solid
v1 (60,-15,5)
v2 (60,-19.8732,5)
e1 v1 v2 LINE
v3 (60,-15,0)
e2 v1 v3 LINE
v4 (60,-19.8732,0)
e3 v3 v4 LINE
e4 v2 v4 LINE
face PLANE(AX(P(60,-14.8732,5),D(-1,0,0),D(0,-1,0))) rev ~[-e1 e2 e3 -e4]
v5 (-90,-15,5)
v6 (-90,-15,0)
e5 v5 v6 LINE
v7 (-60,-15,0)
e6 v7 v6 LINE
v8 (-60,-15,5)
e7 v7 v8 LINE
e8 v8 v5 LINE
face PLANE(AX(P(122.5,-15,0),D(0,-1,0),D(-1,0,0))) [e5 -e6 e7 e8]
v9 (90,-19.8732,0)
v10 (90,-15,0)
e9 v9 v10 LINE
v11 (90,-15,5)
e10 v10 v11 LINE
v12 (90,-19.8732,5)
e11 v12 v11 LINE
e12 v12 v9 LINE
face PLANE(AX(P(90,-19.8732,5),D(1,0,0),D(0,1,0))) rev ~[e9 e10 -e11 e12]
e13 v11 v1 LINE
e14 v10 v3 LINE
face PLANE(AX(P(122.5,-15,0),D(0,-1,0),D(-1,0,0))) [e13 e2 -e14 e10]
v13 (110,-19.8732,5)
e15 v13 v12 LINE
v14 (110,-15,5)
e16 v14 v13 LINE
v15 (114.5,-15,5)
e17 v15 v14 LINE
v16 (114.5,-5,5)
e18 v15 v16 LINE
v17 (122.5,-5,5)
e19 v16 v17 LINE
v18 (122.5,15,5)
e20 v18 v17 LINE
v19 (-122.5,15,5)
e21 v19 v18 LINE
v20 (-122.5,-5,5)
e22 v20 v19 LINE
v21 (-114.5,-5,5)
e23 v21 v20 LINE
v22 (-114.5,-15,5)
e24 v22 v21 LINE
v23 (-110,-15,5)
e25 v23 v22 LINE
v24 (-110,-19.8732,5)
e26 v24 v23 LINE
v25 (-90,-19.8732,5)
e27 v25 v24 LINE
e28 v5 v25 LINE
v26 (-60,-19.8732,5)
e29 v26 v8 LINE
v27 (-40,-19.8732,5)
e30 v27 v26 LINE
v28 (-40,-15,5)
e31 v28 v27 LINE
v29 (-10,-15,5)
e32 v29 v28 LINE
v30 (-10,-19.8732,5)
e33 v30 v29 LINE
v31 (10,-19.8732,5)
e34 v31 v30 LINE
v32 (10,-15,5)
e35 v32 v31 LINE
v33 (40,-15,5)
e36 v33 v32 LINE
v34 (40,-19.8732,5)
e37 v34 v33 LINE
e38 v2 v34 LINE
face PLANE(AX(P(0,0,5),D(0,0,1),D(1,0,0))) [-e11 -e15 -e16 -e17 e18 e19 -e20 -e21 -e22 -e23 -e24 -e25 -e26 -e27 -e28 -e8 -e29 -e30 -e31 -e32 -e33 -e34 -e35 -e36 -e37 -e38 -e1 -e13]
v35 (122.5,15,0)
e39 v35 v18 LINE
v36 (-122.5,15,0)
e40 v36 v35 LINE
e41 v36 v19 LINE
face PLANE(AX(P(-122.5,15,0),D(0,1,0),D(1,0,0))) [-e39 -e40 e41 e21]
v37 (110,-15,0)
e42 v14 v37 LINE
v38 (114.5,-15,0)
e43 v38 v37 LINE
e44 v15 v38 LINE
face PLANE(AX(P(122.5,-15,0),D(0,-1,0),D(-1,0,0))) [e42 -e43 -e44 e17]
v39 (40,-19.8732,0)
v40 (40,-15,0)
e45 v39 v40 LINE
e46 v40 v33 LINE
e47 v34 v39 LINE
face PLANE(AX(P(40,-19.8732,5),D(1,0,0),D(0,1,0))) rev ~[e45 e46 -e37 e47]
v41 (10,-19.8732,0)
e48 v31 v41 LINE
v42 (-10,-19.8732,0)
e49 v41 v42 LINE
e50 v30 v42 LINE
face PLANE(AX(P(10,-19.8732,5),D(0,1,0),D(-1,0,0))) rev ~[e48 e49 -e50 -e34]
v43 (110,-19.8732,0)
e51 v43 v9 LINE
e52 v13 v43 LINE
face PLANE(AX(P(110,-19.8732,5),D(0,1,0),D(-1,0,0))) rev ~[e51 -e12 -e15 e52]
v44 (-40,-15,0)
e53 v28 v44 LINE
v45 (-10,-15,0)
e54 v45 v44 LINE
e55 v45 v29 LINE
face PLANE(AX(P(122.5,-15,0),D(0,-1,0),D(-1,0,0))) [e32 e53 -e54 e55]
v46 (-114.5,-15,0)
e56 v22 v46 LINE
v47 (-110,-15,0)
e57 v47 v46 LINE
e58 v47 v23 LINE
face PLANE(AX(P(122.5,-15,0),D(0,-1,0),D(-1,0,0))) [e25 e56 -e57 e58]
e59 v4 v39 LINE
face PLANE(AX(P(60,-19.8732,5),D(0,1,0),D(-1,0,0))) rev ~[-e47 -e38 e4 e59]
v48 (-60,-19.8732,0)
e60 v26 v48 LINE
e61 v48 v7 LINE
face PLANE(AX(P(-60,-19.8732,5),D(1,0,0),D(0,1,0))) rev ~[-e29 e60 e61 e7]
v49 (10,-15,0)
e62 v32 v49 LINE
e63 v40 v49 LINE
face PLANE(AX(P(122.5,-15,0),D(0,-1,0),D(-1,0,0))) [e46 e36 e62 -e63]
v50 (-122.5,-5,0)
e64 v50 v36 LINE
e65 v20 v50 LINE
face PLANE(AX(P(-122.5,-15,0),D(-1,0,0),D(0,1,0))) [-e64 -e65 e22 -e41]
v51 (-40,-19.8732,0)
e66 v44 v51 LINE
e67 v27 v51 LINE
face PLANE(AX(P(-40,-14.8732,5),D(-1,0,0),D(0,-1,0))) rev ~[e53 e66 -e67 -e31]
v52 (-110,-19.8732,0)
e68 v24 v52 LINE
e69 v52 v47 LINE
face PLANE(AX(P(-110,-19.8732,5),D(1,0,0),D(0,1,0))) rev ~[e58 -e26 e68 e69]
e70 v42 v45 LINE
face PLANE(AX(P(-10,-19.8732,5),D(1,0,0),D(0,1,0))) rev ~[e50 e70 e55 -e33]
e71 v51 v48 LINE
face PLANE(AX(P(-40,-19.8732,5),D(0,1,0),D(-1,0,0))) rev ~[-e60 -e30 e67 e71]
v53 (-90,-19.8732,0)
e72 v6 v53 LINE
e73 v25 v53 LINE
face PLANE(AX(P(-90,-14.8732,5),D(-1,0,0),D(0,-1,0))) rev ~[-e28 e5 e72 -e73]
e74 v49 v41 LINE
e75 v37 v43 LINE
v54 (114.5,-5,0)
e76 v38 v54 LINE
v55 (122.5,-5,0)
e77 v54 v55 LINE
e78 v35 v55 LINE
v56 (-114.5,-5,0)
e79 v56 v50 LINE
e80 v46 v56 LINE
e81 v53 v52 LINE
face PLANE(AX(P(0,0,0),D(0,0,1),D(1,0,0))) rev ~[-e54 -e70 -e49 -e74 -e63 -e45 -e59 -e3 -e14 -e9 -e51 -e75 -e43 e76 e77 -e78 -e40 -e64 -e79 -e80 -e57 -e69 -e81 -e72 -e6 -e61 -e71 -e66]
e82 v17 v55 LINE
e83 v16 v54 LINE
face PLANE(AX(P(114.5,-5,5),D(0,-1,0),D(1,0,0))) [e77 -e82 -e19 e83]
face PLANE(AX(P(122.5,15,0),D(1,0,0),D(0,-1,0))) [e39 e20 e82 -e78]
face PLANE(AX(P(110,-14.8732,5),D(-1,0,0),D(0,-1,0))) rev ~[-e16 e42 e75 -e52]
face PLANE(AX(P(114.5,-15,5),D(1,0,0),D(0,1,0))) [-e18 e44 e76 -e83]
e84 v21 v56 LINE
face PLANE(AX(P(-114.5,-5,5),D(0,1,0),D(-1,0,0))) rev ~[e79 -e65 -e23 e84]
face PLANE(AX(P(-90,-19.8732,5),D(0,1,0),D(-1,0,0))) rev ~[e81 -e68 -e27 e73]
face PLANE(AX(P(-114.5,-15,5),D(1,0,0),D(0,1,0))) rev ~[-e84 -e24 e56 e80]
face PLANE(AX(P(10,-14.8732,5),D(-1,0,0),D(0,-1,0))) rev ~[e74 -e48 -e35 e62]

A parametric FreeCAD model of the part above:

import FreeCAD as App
import Part
import Sketcher

V = App.Vector


def add_polygon(sketch, points):
    """Adds a closed chain of lines whose ends are joined by coincident constraints."""
    first, n = sketch.GeometryCount, len(points)
    for a, b in zip(points, points[1:] + points[:1]):
        sketch.addGeometry(Part.LineSegment(App.Vector(*a, 0), App.Vector(*b, 0)), False)
    for i in range(n):
        sketch.addConstraint(Sketcher.Constraint("Coincident", first + i, 2, first + (i + 1) % n, 1))

doc = App.newDocument("Part")
body = doc.addObject("PartDesign::Body", "Body")

# Sketch on XY plane
sketch1 = body.newObject("Sketcher::SketchObject", "Sketch")
sketch1.AttachmentSupport = (doc.getObject("XY_Plane"), [""])
sketch1.MapMode = "FlatFace"
add_polygon(sketch1, [(122, 15), (-122, 15), (-122, -15), (122, -15)])  # lines 0-3
sketch1.addConstraint([
    Sketcher.Constraint("Horizontal", 0),
    Sketcher.Constraint("Vertical", 1),
    Sketcher.Constraint("Horizontal", 2),
    Sketcher.Constraint("Vertical", 3),
    Sketcher.Constraint("Symmetric", 0, 2, 2, 2, -1, 1),
    Sketcher.Constraint("DistanceX", 0, 2, 0, 1, 245.0),
    Sketcher.Constraint("DistanceY", 1, 2, 1, 1, 30.0),
])
pad1 = body.newObject("PartDesign::Pad", "Pad")
pad1.Profile = sketch1
pad1.Length = 5

# Sketch on XY plane
sketch2 = body.newObject("Sketcher::SketchObject", "Sketch001")
sketch2.AttachmentSupport = (doc.getObject("XY_Plane"), [""])
sketch2.MapMode = "FlatFace"
sketch2.AttachmentOffset = App.Placement(V(0, 0, 5), App.Rotation())
add_polygon(sketch2, [(-90, -15), (-110, -15), (-110, -20), (-90, -20)])  # lines 0-3
add_polygon(sketch2, [(-40, -15), (-60, -15), (-60, -20), (-40, -20)])  # lines 4-7
add_polygon(sketch2, [(10, -15), (-10, -15), (-10, -20), (10, -20)])  # lines 8-11
add_polygon(sketch2, [(60, -15), (40, -15), (40, -20), (60, -20)])  # lines 12-15
add_polygon(sketch2, [(110, -15), (90, -15), (90, -20), (110, -20)])  # lines 16-19
sketch2.addConstraint([
    Sketcher.Constraint("Horizontal", 0),
    Sketcher.Constraint("Vertical", 1),
    Sketcher.Constraint("Horizontal", 2),
    Sketcher.Constraint("Vertical", 3),
    Sketcher.Constraint("Horizontal", 4),
    Sketcher.Constraint("Vertical", 5),
    Sketcher.Constraint("Horizontal", 6),
    Sketcher.Constraint("Vertical", 7),
    Sketcher.Constraint("Horizontal", 8),
    Sketcher.Constraint("Vertical", 9),
    Sketcher.Constraint("Horizontal", 10),
    Sketcher.Constraint("Vertical", 11),
    Sketcher.Constraint("Horizontal", 12),
    Sketcher.Constraint("Vertical", 13),
    Sketcher.Constraint("Horizontal", 14),
    Sketcher.Constraint("Vertical", 15),
    Sketcher.Constraint("Horizontal", 16),
    Sketcher.Constraint("Vertical", 17),
    Sketcher.Constraint("Horizontal", 18),
    Sketcher.Constraint("Vertical", 19),
    Sketcher.Constraint("Symmetric", 7, 2, 12, 2, -2),
    Sketcher.Constraint("Symmetric", 5, 2, 14, 2, -2),
    Sketcher.Constraint("Symmetric", 3, 2, 16, 2, -2),
    Sketcher.Constraint("Symmetric", 1, 2, 18, 2, -2),
    Sketcher.Constraint("Horizontal", 3, 2, 4, 2),
    Sketcher.Constraint("Horizontal", 2, 2, 5, 2),
    Sketcher.Constraint("Horizontal", 7, 2, 8, 2),
    Sketcher.Constraint("Horizontal", 6, 2, 9, 2),
    Sketcher.Constraint("Equal", 2, 4),
    Sketcher.Constraint("Equal", 6, 8),
    Sketcher.Constraint("DistanceX", 0, 2, 0, 1, 20.0),
    Sketcher.Constraint("DistanceY", 1, 2, 1, 1, 5.0),
    Sketcher.Constraint("DistanceX", 8, 2, -1, 1, 10.0),
    Sketcher.Constraint("DistanceX", 0, 2, 4, 2, 50.0),
    Sketcher.Constraint("DistanceX", 4, 2, 8, 2, 50.0),
    Sketcher.Constraint("DistanceY", 0, 2, -1, 1, 14.8732),
])
pad2 = body.newObject("PartDesign::Pad", "Pad001")
pad2.Profile = sketch2
pad2.Length = 5
pad2.Reversed = True

# Sketch on XY plane
sketch3 = body.newObject("Sketcher::SketchObject", "Sketch002")
sketch3.AttachmentSupport = (doc.getObject("XY_Plane"), [""])
sketch3.MapMode = "FlatFace"
sketch3.AttachmentOffset = App.Placement(V(0, 0, 5), App.Rotation())
add_polygon(sketch3, [(-114, -5), (-122, -5), (-122, -15), (-114, -15)])  # lines 0-3
add_polygon(sketch3, [(114, -15), (122, -15), (122, -5), (114, -5)])  # lines 4-7
sketch3.addConstraint([
    Sketcher.Constraint("Horizontal", 0),
    Sketcher.Constraint("Vertical", 1),
    Sketcher.Constraint("Horizontal", 2),
    Sketcher.Constraint("Vertical", 3),
    Sketcher.Constraint("Horizontal", 4),
    Sketcher.Constraint("Vertical", 5),
    Sketcher.Constraint("Horizontal", 6),
    Sketcher.Constraint("Vertical", 7),
    Sketcher.Constraint("Symmetric", 1, 2, 4, 2, -2),
    Sketcher.Constraint("Symmetric", 3, 2, 6, 2, -2),
    Sketcher.Constraint("DistanceX", 0, 2, 0, 1, 8.0),
    Sketcher.Constraint("DistanceY", 1, 2, 1, 1, 10.0),
    Sketcher.Constraint("DistanceY", 0, 2, -1, 1, 5.0),
    Sketcher.Constraint("DistanceX", 2, 2, 4, 2, 237.0),
])
pocket1 = body.newObject("PartDesign::Pocket", "Pocket")
pocket1.Profile = sketch3
pocket1.Length = 5

doc.recompute()
